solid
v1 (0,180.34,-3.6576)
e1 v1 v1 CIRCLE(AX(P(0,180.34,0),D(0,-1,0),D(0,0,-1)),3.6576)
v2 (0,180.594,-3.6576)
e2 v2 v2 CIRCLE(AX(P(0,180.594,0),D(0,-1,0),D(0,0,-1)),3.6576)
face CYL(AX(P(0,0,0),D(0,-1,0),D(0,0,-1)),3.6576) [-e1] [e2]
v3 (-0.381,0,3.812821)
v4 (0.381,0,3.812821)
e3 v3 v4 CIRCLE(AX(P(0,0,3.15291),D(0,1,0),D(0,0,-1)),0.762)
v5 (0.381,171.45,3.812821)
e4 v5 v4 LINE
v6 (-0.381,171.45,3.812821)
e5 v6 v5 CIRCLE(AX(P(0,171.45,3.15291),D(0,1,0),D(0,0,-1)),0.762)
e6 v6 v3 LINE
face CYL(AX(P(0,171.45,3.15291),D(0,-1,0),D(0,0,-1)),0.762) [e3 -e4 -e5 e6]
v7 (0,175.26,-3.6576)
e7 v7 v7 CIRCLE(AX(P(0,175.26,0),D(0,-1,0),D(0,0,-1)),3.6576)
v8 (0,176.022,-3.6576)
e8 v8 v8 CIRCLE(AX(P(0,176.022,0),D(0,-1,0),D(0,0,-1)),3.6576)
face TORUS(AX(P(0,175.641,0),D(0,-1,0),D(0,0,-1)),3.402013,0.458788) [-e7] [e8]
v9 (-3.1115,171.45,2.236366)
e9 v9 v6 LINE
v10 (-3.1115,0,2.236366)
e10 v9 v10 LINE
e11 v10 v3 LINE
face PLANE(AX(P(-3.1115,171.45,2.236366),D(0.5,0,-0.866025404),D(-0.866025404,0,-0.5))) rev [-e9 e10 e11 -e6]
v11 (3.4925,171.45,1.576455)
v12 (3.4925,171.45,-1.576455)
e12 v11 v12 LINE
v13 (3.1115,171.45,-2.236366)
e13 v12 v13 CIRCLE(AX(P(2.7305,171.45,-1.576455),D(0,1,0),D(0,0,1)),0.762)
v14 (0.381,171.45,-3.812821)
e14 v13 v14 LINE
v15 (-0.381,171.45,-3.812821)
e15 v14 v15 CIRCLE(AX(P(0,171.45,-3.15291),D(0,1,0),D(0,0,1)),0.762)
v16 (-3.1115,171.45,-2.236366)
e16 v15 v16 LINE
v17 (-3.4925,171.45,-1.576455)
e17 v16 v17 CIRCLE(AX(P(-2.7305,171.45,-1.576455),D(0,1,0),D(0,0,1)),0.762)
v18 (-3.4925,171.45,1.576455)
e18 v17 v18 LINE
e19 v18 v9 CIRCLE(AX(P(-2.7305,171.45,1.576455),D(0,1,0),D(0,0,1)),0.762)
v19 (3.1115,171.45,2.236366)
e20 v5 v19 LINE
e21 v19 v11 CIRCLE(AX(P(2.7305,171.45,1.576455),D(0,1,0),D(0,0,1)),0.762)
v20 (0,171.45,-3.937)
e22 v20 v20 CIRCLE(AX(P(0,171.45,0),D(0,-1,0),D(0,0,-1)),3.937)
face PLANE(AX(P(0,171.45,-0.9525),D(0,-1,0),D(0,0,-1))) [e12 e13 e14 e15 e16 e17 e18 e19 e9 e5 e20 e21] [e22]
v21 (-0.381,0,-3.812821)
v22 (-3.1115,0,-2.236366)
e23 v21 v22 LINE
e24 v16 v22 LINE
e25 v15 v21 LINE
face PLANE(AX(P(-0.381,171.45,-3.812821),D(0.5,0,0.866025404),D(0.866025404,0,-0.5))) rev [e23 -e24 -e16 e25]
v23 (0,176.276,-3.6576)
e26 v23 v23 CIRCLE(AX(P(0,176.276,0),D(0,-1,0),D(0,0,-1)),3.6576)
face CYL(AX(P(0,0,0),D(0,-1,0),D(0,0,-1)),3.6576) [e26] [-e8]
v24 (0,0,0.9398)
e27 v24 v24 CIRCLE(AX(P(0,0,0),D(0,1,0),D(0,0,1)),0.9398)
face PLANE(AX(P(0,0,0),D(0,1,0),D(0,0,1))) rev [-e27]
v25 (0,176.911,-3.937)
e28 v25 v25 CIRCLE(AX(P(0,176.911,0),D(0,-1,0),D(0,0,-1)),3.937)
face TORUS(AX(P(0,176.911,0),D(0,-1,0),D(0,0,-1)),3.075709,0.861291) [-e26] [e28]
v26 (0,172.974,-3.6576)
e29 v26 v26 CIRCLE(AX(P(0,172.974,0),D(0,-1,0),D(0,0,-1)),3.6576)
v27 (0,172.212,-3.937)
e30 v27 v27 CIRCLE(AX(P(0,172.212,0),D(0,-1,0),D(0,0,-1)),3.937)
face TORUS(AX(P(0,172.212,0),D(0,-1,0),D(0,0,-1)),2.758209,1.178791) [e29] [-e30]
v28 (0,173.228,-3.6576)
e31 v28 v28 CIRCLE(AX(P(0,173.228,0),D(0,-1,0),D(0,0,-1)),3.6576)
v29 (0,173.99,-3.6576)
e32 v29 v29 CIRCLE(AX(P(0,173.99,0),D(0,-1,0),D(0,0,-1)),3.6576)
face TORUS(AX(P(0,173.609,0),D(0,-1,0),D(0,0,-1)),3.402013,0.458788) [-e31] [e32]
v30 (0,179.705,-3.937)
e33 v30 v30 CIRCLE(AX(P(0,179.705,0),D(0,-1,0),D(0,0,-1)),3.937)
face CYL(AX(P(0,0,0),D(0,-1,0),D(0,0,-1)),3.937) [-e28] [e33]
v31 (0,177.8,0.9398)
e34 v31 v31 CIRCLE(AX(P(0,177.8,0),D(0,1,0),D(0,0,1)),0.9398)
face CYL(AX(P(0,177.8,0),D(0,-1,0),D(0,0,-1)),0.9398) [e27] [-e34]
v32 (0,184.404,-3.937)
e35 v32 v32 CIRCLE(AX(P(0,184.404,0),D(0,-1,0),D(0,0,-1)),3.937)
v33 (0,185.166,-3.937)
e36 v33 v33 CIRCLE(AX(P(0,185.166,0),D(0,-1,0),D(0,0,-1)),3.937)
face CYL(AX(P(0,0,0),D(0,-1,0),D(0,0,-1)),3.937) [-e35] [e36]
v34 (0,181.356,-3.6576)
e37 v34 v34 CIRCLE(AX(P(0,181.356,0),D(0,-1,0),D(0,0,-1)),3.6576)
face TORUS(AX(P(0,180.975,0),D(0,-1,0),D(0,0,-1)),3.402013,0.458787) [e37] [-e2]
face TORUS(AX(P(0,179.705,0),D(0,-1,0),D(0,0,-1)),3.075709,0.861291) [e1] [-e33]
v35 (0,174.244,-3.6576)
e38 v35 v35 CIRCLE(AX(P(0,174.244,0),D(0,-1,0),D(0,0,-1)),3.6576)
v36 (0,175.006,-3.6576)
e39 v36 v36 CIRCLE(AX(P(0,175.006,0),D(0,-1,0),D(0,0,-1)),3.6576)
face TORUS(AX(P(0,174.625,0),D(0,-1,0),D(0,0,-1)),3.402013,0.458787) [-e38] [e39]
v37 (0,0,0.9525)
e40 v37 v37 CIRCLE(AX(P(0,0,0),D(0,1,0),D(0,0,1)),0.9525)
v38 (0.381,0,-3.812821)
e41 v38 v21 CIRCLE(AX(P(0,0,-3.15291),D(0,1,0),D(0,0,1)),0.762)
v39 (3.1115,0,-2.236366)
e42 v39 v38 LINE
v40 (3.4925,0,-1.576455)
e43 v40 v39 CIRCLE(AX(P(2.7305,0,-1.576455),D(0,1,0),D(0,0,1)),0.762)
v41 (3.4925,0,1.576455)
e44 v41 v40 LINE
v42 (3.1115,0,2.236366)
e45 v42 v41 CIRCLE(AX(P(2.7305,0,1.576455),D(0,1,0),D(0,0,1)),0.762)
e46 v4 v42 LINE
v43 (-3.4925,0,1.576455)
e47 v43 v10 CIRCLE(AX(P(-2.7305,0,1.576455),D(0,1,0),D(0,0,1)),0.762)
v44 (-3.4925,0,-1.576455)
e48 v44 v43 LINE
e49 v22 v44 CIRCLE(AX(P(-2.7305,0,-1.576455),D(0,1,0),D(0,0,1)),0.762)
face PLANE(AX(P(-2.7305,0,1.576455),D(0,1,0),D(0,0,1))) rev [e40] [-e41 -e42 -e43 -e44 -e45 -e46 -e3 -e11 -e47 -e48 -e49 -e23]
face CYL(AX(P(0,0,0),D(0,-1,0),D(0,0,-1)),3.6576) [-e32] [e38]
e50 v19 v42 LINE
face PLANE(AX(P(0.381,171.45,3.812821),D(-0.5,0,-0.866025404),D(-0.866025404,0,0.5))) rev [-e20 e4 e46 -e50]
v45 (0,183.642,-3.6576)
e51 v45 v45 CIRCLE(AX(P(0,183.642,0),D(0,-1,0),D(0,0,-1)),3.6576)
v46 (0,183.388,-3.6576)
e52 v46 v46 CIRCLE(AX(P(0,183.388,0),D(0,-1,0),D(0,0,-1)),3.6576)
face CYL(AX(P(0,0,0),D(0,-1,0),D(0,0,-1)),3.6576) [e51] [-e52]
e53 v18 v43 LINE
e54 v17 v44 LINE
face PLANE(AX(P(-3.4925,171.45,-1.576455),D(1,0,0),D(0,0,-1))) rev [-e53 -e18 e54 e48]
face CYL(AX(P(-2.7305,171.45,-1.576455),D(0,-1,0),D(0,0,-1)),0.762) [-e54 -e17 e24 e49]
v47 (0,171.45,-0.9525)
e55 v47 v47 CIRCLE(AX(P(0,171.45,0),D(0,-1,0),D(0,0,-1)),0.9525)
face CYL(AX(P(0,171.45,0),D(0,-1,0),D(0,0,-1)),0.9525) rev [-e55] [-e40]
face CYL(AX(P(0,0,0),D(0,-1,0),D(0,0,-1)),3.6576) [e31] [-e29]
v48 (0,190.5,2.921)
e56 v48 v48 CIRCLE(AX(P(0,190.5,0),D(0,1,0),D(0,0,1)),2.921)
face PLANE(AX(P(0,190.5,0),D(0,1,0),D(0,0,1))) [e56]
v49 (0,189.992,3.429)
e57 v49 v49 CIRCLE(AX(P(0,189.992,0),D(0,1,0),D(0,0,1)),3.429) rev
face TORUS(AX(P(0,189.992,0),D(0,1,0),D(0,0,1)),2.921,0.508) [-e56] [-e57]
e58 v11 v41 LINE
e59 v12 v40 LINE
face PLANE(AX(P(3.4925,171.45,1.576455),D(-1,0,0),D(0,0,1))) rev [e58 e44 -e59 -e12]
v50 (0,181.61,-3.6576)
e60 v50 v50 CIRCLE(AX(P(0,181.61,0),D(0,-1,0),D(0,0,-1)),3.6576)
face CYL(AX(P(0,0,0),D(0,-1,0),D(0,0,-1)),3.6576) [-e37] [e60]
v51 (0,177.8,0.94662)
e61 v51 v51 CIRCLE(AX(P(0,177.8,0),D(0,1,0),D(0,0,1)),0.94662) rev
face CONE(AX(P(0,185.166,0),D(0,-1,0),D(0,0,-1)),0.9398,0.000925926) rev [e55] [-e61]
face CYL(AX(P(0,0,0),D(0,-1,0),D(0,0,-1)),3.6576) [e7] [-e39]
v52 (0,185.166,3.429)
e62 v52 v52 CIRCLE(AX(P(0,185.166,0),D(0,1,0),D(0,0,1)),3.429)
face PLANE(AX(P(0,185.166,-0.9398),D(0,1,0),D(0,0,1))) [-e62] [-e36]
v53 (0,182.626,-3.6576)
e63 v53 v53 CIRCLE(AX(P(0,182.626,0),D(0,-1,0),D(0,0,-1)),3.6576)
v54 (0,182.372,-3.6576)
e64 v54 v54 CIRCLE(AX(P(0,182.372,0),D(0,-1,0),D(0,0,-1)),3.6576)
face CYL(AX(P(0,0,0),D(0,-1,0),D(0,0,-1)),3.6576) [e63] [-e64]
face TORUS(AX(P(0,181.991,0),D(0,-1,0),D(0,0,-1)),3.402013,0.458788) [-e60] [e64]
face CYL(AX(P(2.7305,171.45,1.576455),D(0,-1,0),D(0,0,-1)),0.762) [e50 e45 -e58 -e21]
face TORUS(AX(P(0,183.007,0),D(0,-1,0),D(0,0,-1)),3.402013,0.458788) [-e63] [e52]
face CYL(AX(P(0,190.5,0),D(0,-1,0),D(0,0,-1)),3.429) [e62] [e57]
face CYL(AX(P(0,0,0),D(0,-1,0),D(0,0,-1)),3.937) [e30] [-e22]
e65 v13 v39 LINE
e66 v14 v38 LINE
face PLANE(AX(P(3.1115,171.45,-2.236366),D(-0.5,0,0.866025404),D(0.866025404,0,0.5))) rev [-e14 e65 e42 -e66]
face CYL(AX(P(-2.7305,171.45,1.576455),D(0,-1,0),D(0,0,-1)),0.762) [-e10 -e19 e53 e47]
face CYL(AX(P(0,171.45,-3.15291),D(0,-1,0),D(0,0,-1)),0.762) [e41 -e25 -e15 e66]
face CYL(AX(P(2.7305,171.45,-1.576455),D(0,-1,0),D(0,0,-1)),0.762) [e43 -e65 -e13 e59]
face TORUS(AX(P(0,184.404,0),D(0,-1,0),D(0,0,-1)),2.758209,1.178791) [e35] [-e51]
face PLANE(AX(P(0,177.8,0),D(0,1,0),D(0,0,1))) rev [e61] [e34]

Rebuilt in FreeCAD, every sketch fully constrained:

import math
import FreeCAD as App
import Part
import Sketcher
from FreeCAD import Vector
Q = App.Units.Quantity


def edges_at(feature, points):
    """Names of the edges that pass closest to the given points."""
    edges = feature.Shape.Edges
    near = lambda p: min(range(len(edges)), key=lambda i: edges[i].distToShape(Part.Vertex(*p))[0])
    return sorted({f"Edge{near(p) + 1}" for p in points})

doc = App.newDocument("Part")
params = doc.addObject("Spreadsheet::Sheet", "Params")
for row, (alias, value) in enumerate([
    ("sketch1_diameter", "0.074 in"),
    ("pad1_length", "7 in"),
    ("sketch2_radius", "0.03 in"),
    ("sketch2_diameter", "0.075 in"),
    ("pad2_length", "6.75 in"),
    ("sketch3_width", "0.01 in"),
    ("sketch3_width2", "0.11 in"),
    ("sketch3_width3", "0.03 in"),
    ("sketch3_height", "0.118 in"),
    ("revolution_angle", "360 deg"),
    ("sketch4_diameter", "0.27 in"),
    ("pad3_length", "0.5 in"),
    ("fillet_radius", "0.02 in"),
], start=1):
    params.set(f"A{row}", alias)
    params.set(f"B{row}", "=" + value)
    params.setAlias(f"B{row}", alias)

body = doc.addObject("PartDesign::Body", "Body")

sketch1 = body.newObject("Sketcher::SketchObject", "Sketch")
sketch1.AttachmentSupport = (doc.getObject("XZ_Plane"), [""])
sketch1.MapMode = "FlatFace"
sketch1.addGeometry(Part.Circle(Vector(0, 0, 0), Vector(0, 0, 1), 0.9), False)
sketch1.addConstraint([
    Sketcher.Constraint("Coincident", 0, 3, -1, 1),
    Sketcher.Constraint("Diameter", 0, Q("0.074 in")),
])
sketch1.setExpression("Constraints[1]", "Params.sketch1_diameter")
pad1 = body.newObject("PartDesign::Pad", "Pad")
pad1.Profile = sketch1
pad1.setExpression("Length", "Params.pad1_length")
pad1.Reversed = True
body2 = doc.addObject("PartDesign::Body", "Body001")

sketch2 = body2.newObject("Sketcher::SketchObject", "Sketch001")
sketch2.AttachmentSupport = (doc.getObject("XZ_Plane001"), [""])
sketch2.MapMode = "FlatFace"
sketch2.addGeometry([
    Part.LineSegment(Vector(0.4, 3.8, 0), Vector(3.1, 2.2, 0)),
    Part.ArcOfCircle(Part.Circle(Vector(2.7, 1.6, 0), Vector(0, 0, 1), 0.8), math.radians(0), math.radians(60)),
    Part.LineSegment(Vector(3.5, 1.6, 0), Vector(3.5, -1.6, 0)),
    Part.ArcOfCircle(Part.Circle(Vector(2.7, -1.6, 0), Vector(0, 0, 1), 0.8), math.radians(-60), math.radians(0)),
    Part.LineSegment(Vector(3.1, -2.2, 0), Vector(0.4, -3.8, 0)),
    Part.ArcOfCircle(Part.Circle(Vector(0, -3.2, 0), Vector(0, 0, 1), 0.8), math.radians(-120), math.radians(-60)),
    Part.LineSegment(Vector(-0.4, -3.8, 0), Vector(-3.1, -2.2, 0)),
    Part.ArcOfCircle(Part.Circle(Vector(-2.7, -1.6, 0), Vector(0, 0, 1), 0.8), math.radians(180), math.radians(240)),
    Part.LineSegment(Vector(-3.5, -1.6, 0), Vector(-3.5, 1.6, 0)),
    Part.ArcOfCircle(Part.Circle(Vector(-2.7, 1.6, 0), Vector(0, 0, 1), 0.8), math.radians(120), math.radians(180)),
    Part.LineSegment(Vector(-3.1, 2.2, 0), Vector(-0.4, 3.8, 0)),
    Part.ArcOfCircle(Part.Circle(Vector(0, 3.2, 0), Vector(0, 0, 1), 0.8), math.radians(60), math.radians(120)),
    Part.Circle(Vector(0, 0, 0), Vector(0, 0, 1), 1),
], False)
sketch2.addConstraint([
    Sketcher.Constraint("Tangent", 0, 2, 1, 2),
    Sketcher.Constraint("Tangent", 1, 1, 2, 1),
    Sketcher.Constraint("Tangent", 2, 2, 3, 2),
    Sketcher.Constraint("Tangent", 3, 1, 4, 1),
    Sketcher.Constraint("Tangent", 4, 2, 5, 2),
    Sketcher.Constraint("Tangent", 5, 1, 6, 1),
    Sketcher.Constraint("Tangent", 6, 2, 7, 2),
    Sketcher.Constraint("Tangent", 7, 1, 8, 1),
    Sketcher.Constraint("Tangent", 8, 2, 9, 2),
    Sketcher.Constraint("Tangent", 9, 1, 10, 1),
    Sketcher.Constraint("Tangent", 10, 2, 11, 2),
    Sketcher.Constraint("Tangent", 11, 1, 0, 1),
    Sketcher.Constraint("Vertical", 2),
    Sketcher.Constraint("Vertical", 8),
    Sketcher.Constraint("Coincident", 12, 3, -1, 1),
    Sketcher.Constraint("Equal", 1, 3),
    Sketcher.Constraint("Equal", 3, 5),
    Sketcher.Constraint("Equal", 5, 7),
    Sketcher.Constraint("Equal", 7, 9),
    Sketcher.Constraint("Equal", 9, 11),
    Sketcher.Constraint("Symmetric", 1, 3, 7, 3, -1, 1),
    Sketcher.Constraint("Symmetric", 5, 3, 11, 3, -1, 1),
    Sketcher.Constraint("Symmetric", 4, 2, 5, 1, -2),
    Sketcher.Constraint("Parallel", 4, 10),
    Sketcher.Constraint("Radius", 1, Q("0.03 in")),
    Sketcher.Constraint("Diameter", 12, Q("0.075 in")),
    Sketcher.Constraint("Angle", 0, Q("-30 deg")),
    Sketcher.Constraint("DistanceX", 9, 3, 0, 2, Q("0.23 in")),
    Sketcher.Constraint("DistanceY", 2, 2, 2, 1, Q("3.15291 mm")),
])
sketch2.setExpression("Constraints[24]", "Params.sketch2_radius")
sketch2.setExpression("Constraints[25]", "Params.sketch2_diameter")
pad2 = body2.newObject("PartDesign::Pad", "Pad001")
pad2.Profile = sketch2
pad2.setExpression("Length", "Params.pad2_length")
pad2.Reversed = True

sketch3 = body2.newObject("Sketcher::SketchObject", "Sketch002")
sketch3.AttachmentSupport = (doc.getObject("YZ_Plane001"), [""])
sketch3.MapMode = "FlatFace"
sketch3.addGeometry([
    Part.LineSegment(Vector(172.97, -3.66, 0), Vector(173.23, -3.66, 0)),
    Part.ArcOfCircle(Part.Circle(Vector(173.61, -3.4, 0), Vector(0, 0, 1), 0.46), math.radians(-146), math.radians(-34)),
    Part.LineSegment(Vector(173.99, -3.66, 0), Vector(174.24, -3.66, 0)),
    Part.ArcOfCircle(Part.Circle(Vector(174.62, -3.4, 0), Vector(0, 0, 1), 0.46), math.radians(-146), math.radians(-34)),
    Part.LineSegment(Vector(175.01, -3.66, 0), Vector(175.26, -3.66, 0)),
    Part.ArcOfCircle(Part.Circle(Vector(175.64, -3.4, 0), Vector(0, 0, 1), 0.46), math.radians(-146), math.radians(-34)),
    Part.LineSegment(Vector(176.02, -3.66, 0), Vector(176.28, -3.66, 0)),
    Part.ArcOfCircle(Part.Circle(Vector(176.91, -3.08, 0), Vector(0, 0, 1), 0.86), math.radians(-137), math.radians(-90)),
    Part.LineSegment(Vector(176.91, -3.94, 0), Vector(179.71, -3.94, 0)),
    Part.ArcOfCircle(Part.Circle(Vector(179.7, -3.08, 0), Vector(0, 0, 1), 0.86), math.radians(-90), math.radians(-43)),
    Part.LineSegment(Vector(180.34, -3.66, 0), Vector(180.59, -3.66, 0)),
    Part.ArcOfCircle(Part.Circle(Vector(180.97, -3.4, 0), Vector(0, 0, 1), 0.46), math.radians(-146), math.radians(-34)),
    Part.LineSegment(Vector(181.36, -3.66, 0), Vector(181.61, -3.66, 0)),
    Part.ArcOfCircle(Part.Circle(Vector(181.99, -3.4, 0), Vector(0, 0, 1), 0.46), math.radians(-146), math.radians(-34)),
    Part.LineSegment(Vector(182.37, -3.66, 0), Vector(182.63, -3.66, 0)),
    Part.ArcOfCircle(Part.Circle(Vector(183.01, -3.4, 0), Vector(0, 0, 1), 0.46), math.radians(-146), math.radians(-34)),
    Part.LineSegment(Vector(183.39, -3.66, 0), Vector(183.64, -3.66, 0)),
    Part.ArcOfCircle(Part.Circle(Vector(184.4, -2.76, 0), Vector(0, 0, 1), 1.18), math.radians(-130), math.radians(-90)),
    Part.LineSegment(Vector(184.4, -3.94, 0), Vector(185.17, -3.94, 0)),
    Part.LineSegment(Vector(185.17, -3.94, 0), Vector(185.17, -0.94, 0)),
    Part.LineSegment(Vector(185.17, -0.94, 0), Vector(171.45, -0.95, 0)),
    Part.LineSegment(Vector(171.45, -0.95, 0), Vector(171.45, -3.94, 0)),
    Part.LineSegment(Vector(171.45, -3.94, 0), Vector(172.21, -3.94, 0)),
    Part.ArcOfCircle(Part.Circle(Vector(172.21, -2.76, 0), Vector(0, 0, 1), 1.18), math.radians(-90), math.radians(-50)),
], False)
sketch3.addConstraint([
    Sketcher.Constraint("Coincident", 0, 2, 1, 1),
    Sketcher.Constraint("Coincident", 1, 2, 2, 1),
    Sketcher.Constraint("Coincident", 2, 2, 3, 1),
    Sketcher.Constraint("Coincident", 3, 2, 4, 1),
    Sketcher.Constraint("Coincident", 4, 2, 5, 1),
    Sketcher.Constraint("Coincident", 5, 2, 6, 1),
    Sketcher.Constraint("Coincident", 6, 2, 7, 1),
    Sketcher.Constraint("Tangent", 7, 2, 8, 1),
    Sketcher.Constraint("Tangent", 8, 2, 9, 1),
    Sketcher.Constraint("Coincident", 9, 2, 10, 1),
    Sketcher.Constraint("Coincident", 10, 2, 11, 1),
    Sketcher.Constraint("Coincident", 11, 2, 12, 1),
    Sketcher.Constraint("Coincident", 12, 2, 13, 1),
    Sketcher.Constraint("Coincident", 13, 2, 14, 1),
    Sketcher.Constraint("Coincident", 14, 2, 15, 1),
    Sketcher.Constraint("Coincident", 15, 2, 16, 1),
    Sketcher.Constraint("Coincident", 16, 2, 17, 1),
    Sketcher.Constraint("Tangent", 17, 2, 18, 1),
    Sketcher.Constraint("Coincident", 18, 2, 19, 1),
    Sketcher.Constraint("Coincident", 19, 2, 20, 1),
    Sketcher.Constraint("Coincident", 20, 2, 21, 1),
    Sketcher.Constraint("Coincident", 21, 2, 22, 1),
    Sketcher.Constraint("Tangent", 22, 2, 23, 1),
    Sketcher.Constraint("Coincident", 23, 2, 0, 1),
    Sketcher.Constraint("Horizontal", 0),
    Sketcher.Constraint("Horizontal", 2),
    Sketcher.Constraint("Horizontal", 4),
    Sketcher.Constraint("Horizontal", 6),
    Sketcher.Constraint("Horizontal", 8),
    Sketcher.Constraint("Horizontal", 10),
    Sketcher.Constraint("Horizontal", 12),
    Sketcher.Constraint("Horizontal", 14),
    Sketcher.Constraint("Horizontal", 16),
    Sketcher.Constraint("Horizontal", 18),
    Sketcher.Constraint("Vertical", 19),
    Sketcher.Constraint("Vertical", 21),
    Sketcher.Constraint("Horizontal", 22),
    Sketcher.Constraint("Equal", 1, 3),
    Sketcher.Constraint("Equal", 3, 5),
    Sketcher.Constraint("Equal", 7, 9),
    Sketcher.Constraint("Equal", 5, 11),
    Sketcher.Constraint("Equal", 11, 13),
    Sketcher.Constraint("Equal", 13, 15),
    Sketcher.Constraint("Equal", 17, 23),
    Sketcher.Constraint("Horizontal", 1, 3, 3, 3),
    Sketcher.Constraint("Horizontal", 3, 3, 5, 3),
    Sketcher.Constraint("Horizontal", 5, 3, 11, 3),
    Sketcher.Constraint("Horizontal", 11, 3, 13, 3),
    Sketcher.Constraint("Horizontal", 13, 3, 15, 3),
    Sketcher.Constraint("Horizontal", 17, 3, 23, 3),
    Sketcher.Constraint("Horizontal", 0, 2, 1, 2),
    Sketcher.Constraint("Horizontal", 2, 2, 3, 2),
    Sketcher.Constraint("Horizontal", 4, 2, 5, 2),
    Sketcher.Constraint("Horizontal", 6, 2, 9, 2),
    Sketcher.Constraint("Horizontal", 10, 2, 11, 2),
    Sketcher.Constraint("Horizontal", 12, 2, 13, 2),
    Sketcher.Constraint("Horizontal", 14, 2, 15, 2),
    Sketcher.Constraint("Horizontal", 8, 2, 17, 2),
    Sketcher.Constraint("Equal", 0, 2),
    Sketcher.Constraint("Equal", 2, 4),
    Sketcher.Constraint("Equal", 4, 6),
    Sketcher.Constraint("Equal", 6, 10),
    Sketcher.Constraint("Equal", 10, 12),
    Sketcher.Constraint("Equal", 12, 14),
    Sketcher.Constraint("Equal", 14, 16),
    Sketcher.Constraint("Equal", 18, 22),
    Sketcher.Constraint("DistanceX", 0, 1, 0, 2, Q("0.01 in")),
    Sketcher.Constraint("DistanceX", 8, 1, 8, 2, Q("0.11 in")),
    Sketcher.Constraint("DistanceX", 18, 1, 18, 2, Q("0.03 in")),
    Sketcher.Constraint("DistanceX", -1, 1, 4, 2, Q("6.9 in")),
    Sketcher.Constraint("DistanceX", -1, 1, 9, 2, Q("7.1 in")),
    Sketcher.Constraint("DistanceX", 3, 3, 9, 3, Q("0.2 in")),
    Sketcher.Constraint("DistanceX", 20, 2, 1, 2, Q("0.1 in")),
    Sketcher.Constraint("DistanceY", 19, 1, 19, 2, Q("0.118 in")),
    Sketcher.Constraint("DistanceY", 21, 2, 21, 1, Q("0.1175 in")),
    Sketcher.Constraint("DistanceY", 0, 2, -1, 1, Q("0.144 in")),
    Sketcher.Constraint("DistanceY", 7, 2, -1, 1, Q("0.155 in")),
    Sketcher.Constraint("Radius", 1, Q("0.458788 mm")),
])
sketch3.setExpression("Constraints[66]", "Params.sketch3_width")
sketch3.setExpression("Constraints[67]", "Params.sketch3_width2")
sketch3.setExpression("Constraints[68]", "Params.sketch3_width3")
sketch3.setExpression("Constraints[73]", "Params.sketch3_height")
revolution = body2.newObject("PartDesign::Revolution", "Revolution")
revolution.Profile = sketch3
revolution.ReferenceAxis = (sketch3, ["H_Axis"])
revolution.setExpression("Angle", "Params.revolution_angle")
body.AllowCompound = True
doc.recompute()

boolean = body.newObject("PartDesign::Boolean", "Boolean")
boolean.Type = "Fuse"
boolean.addObjects([body2])

sketch4 = body.newObject("Sketcher::SketchObject", "Sketch003")
sketch4.AttachmentSupport = (doc.getObject("XZ_Plane"), [""])
sketch4.MapMode = "FlatFace"
sketch4.AttachmentOffset = App.Placement(Vector(0, 0, -7 * 25.4), App.Rotation())
sketch4.addGeometry(Part.Circle(Vector(0, 0, 0), Vector(0, 0, 1), 3.4), False)
sketch4.addConstraint([
    Sketcher.Constraint("Coincident", 0, 3, -1, 1),
    Sketcher.Constraint("Diameter", 0, Q("0.27 in")),
])
sketch4.setExpression("Constraints[1]", "Params.sketch4_diameter")
pad3 = body.newObject("PartDesign::Pad", "Pad002")
pad3.Profile = sketch4
pad3.setExpression("Length", "Params.pad3_length")
pad3.Reversed = True
doc.recompute()

fillet = body.newObject("PartDesign::Fillet", "Fillet")
fillet.Base = (pad3, edges_at(pad3, [(-3.429, 190.5, 0)]))
fillet.setExpression("Radius", "Params.fillet_radius")

doc.recompute()
